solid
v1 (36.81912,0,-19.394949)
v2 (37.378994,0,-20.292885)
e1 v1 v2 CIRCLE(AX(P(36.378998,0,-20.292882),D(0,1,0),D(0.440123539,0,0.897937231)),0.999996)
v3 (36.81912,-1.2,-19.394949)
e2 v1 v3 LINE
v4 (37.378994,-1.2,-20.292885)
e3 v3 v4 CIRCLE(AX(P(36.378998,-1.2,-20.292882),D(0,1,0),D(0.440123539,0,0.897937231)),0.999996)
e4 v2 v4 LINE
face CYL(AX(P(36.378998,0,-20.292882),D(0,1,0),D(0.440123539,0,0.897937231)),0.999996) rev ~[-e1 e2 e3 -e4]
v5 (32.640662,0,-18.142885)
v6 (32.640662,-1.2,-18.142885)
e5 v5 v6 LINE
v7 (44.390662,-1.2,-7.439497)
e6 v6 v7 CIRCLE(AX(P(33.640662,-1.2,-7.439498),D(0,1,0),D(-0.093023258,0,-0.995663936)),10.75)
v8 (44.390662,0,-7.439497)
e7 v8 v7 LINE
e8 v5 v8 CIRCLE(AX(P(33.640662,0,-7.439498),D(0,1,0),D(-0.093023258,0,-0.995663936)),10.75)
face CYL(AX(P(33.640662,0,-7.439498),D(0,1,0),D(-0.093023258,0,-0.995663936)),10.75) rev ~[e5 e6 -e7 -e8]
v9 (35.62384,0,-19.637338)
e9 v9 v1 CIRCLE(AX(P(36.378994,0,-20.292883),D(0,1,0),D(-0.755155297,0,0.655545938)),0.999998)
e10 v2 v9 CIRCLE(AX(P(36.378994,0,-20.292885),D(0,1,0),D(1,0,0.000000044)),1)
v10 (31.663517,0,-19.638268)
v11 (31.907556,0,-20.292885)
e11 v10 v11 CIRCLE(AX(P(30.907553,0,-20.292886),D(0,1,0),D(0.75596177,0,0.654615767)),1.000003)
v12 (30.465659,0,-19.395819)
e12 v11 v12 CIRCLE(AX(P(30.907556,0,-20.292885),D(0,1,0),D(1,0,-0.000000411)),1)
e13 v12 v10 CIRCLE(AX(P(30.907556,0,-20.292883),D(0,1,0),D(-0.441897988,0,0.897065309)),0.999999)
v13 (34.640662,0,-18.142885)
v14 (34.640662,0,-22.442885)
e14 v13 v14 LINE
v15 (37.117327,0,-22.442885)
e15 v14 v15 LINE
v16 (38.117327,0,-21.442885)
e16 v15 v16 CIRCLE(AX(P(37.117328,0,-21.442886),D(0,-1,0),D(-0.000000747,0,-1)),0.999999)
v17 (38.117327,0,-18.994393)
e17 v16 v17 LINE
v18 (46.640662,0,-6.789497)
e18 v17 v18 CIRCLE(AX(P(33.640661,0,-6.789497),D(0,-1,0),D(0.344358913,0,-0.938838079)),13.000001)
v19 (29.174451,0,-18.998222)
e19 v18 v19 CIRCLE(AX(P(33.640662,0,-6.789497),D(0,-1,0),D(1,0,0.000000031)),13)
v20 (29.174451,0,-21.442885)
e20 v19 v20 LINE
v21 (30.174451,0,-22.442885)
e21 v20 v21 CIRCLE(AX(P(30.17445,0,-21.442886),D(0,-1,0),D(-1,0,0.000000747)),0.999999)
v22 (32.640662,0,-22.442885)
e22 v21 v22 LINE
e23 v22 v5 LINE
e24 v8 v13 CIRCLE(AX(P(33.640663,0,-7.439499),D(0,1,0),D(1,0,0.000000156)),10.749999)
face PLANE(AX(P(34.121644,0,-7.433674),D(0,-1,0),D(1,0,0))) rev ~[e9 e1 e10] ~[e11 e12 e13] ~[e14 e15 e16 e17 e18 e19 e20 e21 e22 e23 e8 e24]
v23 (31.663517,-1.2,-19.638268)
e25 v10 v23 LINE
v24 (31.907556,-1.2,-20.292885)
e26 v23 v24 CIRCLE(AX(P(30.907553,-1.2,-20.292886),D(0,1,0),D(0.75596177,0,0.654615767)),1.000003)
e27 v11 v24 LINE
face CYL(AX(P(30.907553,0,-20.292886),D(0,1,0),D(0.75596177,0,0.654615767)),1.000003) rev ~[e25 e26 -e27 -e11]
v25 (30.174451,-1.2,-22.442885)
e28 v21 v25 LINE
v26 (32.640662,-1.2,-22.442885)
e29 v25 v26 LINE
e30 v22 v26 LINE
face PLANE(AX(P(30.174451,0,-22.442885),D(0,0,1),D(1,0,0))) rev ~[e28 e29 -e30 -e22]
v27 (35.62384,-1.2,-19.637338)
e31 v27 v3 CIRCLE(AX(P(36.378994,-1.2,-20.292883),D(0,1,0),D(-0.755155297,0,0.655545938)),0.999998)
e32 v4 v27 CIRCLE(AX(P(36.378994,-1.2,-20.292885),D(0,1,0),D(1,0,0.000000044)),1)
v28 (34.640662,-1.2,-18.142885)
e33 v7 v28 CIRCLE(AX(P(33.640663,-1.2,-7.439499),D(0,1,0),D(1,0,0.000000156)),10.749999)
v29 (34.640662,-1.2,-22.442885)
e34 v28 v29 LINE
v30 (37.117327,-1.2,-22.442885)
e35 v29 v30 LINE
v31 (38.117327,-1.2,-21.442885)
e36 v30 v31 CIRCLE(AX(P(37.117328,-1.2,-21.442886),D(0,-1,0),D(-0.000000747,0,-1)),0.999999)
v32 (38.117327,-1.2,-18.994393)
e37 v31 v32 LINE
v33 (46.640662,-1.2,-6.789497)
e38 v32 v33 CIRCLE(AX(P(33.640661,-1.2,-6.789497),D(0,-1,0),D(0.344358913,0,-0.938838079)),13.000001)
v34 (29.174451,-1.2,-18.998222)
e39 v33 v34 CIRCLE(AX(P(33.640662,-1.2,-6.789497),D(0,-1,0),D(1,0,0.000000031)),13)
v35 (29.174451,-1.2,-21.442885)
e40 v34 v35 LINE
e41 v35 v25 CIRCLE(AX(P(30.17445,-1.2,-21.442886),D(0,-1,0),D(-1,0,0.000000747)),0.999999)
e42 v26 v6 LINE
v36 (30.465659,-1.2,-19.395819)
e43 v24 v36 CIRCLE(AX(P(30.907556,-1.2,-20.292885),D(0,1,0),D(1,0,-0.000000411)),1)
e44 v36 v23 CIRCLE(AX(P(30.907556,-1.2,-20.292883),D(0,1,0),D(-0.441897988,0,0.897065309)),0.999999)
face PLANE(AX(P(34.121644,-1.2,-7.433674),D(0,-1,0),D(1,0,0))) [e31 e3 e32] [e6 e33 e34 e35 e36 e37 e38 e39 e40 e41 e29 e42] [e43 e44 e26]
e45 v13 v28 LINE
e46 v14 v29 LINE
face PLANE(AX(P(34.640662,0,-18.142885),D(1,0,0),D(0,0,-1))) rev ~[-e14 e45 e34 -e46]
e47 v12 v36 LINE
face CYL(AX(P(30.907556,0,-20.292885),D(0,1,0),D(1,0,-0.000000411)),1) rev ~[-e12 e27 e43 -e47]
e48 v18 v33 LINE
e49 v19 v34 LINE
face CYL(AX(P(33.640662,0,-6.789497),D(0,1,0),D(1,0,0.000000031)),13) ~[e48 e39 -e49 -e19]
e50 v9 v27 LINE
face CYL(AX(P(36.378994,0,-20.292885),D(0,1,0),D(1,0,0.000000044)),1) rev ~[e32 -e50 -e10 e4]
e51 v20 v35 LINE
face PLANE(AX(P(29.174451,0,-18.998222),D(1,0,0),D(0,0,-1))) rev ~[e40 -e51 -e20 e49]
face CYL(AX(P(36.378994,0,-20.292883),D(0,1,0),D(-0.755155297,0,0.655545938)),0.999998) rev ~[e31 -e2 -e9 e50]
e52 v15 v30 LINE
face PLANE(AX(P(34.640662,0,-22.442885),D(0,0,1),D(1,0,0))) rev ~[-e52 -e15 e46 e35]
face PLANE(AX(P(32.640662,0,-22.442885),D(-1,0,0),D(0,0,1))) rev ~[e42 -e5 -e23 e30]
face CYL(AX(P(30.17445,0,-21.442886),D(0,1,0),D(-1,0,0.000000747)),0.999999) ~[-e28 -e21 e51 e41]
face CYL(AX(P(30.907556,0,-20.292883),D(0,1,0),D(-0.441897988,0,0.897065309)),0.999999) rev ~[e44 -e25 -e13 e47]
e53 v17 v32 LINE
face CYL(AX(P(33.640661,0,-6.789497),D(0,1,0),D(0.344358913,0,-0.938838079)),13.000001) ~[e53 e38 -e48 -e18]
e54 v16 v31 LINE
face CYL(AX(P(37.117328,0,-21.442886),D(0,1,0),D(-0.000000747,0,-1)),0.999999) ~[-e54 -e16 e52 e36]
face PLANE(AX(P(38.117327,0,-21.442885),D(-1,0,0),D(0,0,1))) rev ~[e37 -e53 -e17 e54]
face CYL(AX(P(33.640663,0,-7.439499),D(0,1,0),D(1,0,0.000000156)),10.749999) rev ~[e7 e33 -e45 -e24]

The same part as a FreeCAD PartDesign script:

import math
import FreeCAD as App
import Part
import Sketcher

V = App.Vector
Q = App.Units.Quantity

doc = App.newDocument("Part")
body = doc.addObject("PartDesign::Body", "Body")

# Sketch on XZ plane
sketch1 = body.newObject("Sketcher::SketchObject", "Sketch")
sketch1.AttachmentSupport = (doc.getObject("XZ_Plane"), [""])
sketch1.MapMode = "FlatFace"
sketch1.addGeometry([
    Part.ArcOfCircle(Part.Circle(V(33.6, -7.4, 0), V(0, 0, 1), 10.7), math.radians(0), math.radians(265)),  # 0
    Part.ArcOfCircle(Part.Circle(V(33.6, -7.4, 0), V(0, 0, 1), 10.7), math.radians(-85), math.radians(0)),  # 1
    Part.LineSegment(V(34.6, -18.1, 0), V(34.6, -22.4, 0)),  # 2
    Part.LineSegment(V(34.6, -22.4, 0), V(37.1, -22.4, 0)),  # 3
    Part.ArcOfCircle(Part.Circle(V(37.1, -21.4, 0), V(0, 0, 1), 1), math.radians(-90), math.radians(0)),  # 4
    Part.LineSegment(V(38.1, -21.4, 0), V(38.1, -19, 0)),  # 5
    Part.ArcOfCircle(Part.Circle(V(33.6, -6.8, 0), V(0, 0, 1), 13), math.radians(-70), math.radians(0)),  # 6
    Part.ArcOfCircle(Part.Circle(V(33.6, -6.8, 0), V(0, 0, 1), 13), math.radians(0), math.radians(250)),  # 7
    Part.LineSegment(V(29.2, -19, 0), V(29.2, -21.4, 0)),  # 8
    Part.ArcOfCircle(Part.Circle(V(30.2, -21.4, 0), V(0, 0, 1), 1), math.radians(180), math.radians(270)),  # 9
    Part.LineSegment(V(30.2, -22.4, 0), V(32.6, -22.4, 0)),  # 10
    Part.LineSegment(V(32.6, -22.4, 0), V(32.6, -18.1, 0)),  # 11
    Part.ArcOfCircle(Part.Circle(V(36.4, -20.3, 0), V(0, 0, 1), 1), math.radians(64), math.radians(139)),  # 12
    Part.ArcOfCircle(Part.Circle(V(36.4, -20.3, 0), V(0, 0, 1), 1), math.radians(0), math.radians(64)),  # 13
    Part.ArcOfCircle(Part.Circle(V(36.4, -20.3, 0), V(0, 0, 1), 1), math.radians(139), math.radians(360)),  # 14
    Part.ArcOfCircle(Part.Circle(V(30.9, -20.3, 0), V(0, 0, 1), 1), math.radians(41), math.radians(116)),  # 15
    Part.ArcOfCircle(Part.Circle(V(30.9, -20.3, 0), V(0, 0, 1), 1), math.radians(0), math.radians(41)),  # 16
    Part.ArcOfCircle(Part.Circle(V(30.9, -20.3, 0), V(0, 0, 1), 1), math.radians(116), math.radians(360)),  # 17
], False)
sketch1.addConstraint([
    Sketcher.Constraint("Tangent", 0, 1, 1, 2),
    Sketcher.Constraint("Coincident", 1, 1, 2, 1),
    Sketcher.Constraint("Coincident", 2, 2, 3, 1),
    Sketcher.Constraint("Tangent", 3, 2, 4, 1),
    Sketcher.Constraint("Tangent", 4, 2, 5, 1),
    Sketcher.Constraint("Coincident", 5, 2, 6, 1),
    Sketcher.Constraint("Tangent", 6, 2, 7, 1),
    Sketcher.Constraint("Coincident", 7, 2, 8, 1),
    Sketcher.Constraint("Tangent", 8, 2, 9, 1),
    Sketcher.Constraint("Tangent", 9, 2, 10, 1),
    Sketcher.Constraint("Coincident", 10, 2, 11, 1),
    Sketcher.Constraint("Coincident", 11, 2, 0, 2),
    Sketcher.Constraint("Coincident", 12, 1, 13, 2),
    Sketcher.Constraint("Coincident", 13, 1, 14, 2),
    Sketcher.Constraint("Tangent", 14, 1, 12, 2),
    Sketcher.Constraint("Tangent", 15, 1, 16, 2),
    Sketcher.Constraint("Tangent", 16, 1, 17, 2),
    Sketcher.Constraint("Tangent", 17, 1, 15, 2),
    Sketcher.Constraint("Vertical", 2),
    Sketcher.Constraint("Horizontal", 3),
    Sketcher.Constraint("Vertical", 5),
    Sketcher.Constraint("Vertical", 8),
    Sketcher.Constraint("Horizontal", 10),
    Sketcher.Constraint("Vertical", 11),
    Sketcher.Constraint("Coincident", 13, 3, 12, 3),
    Sketcher.Constraint("Equal", 0, 1),
    Sketcher.Constraint("Equal", 6, 7),
    Sketcher.Constraint("Equal", 4, 9),
    Sketcher.Constraint("Equal", 9, 12),
    Sketcher.Constraint("Equal", 14, 15),
    Sketcher.Constraint("Horizontal", 4, 3, 9, 3),
    Sketcher.Constraint("Horizontal", 14, 3, 15, 3),
    Sketcher.Constraint("Horizontal", 1, 3, 0, 1),
    Sketcher.Constraint("Horizontal", 7, 3, 6, 2),
    Sketcher.Constraint("Horizontal", 1, 1, 11, 2),
    Sketcher.Constraint("Horizontal", 17, 3, 13, 1),
    Sketcher.Constraint("Horizontal", 13, 1, 16, 1),
    Sketcher.Constraint("Vertical", 0, 3, 6, 3),
    Sketcher.Constraint("Radius", 4, Q("0.999999 mm")),
    Sketcher.Constraint("Radius", 6, Q("13.000001 mm")),
    Sketcher.Constraint("Radius", 0, Q("10.75 mm")),
    Sketcher.Constraint("DistanceY", 2, 2, 2, 1, Q("4.3 mm")),
    Sketcher.Constraint("DistanceX", 10, 2, 2, 2, Q("2 mm")),
    Sketcher.Constraint("DistanceY", 0, 3, 6, 3, Q("0.650001 mm")),
    Sketcher.Constraint("DistanceY", 4, 3, 14, 3, Q("1.150001 mm")),
    Sketcher.Constraint("DistanceX", -1, 1, 13, 3, Q("36.378998 mm")),
    Sketcher.Constraint("DistanceX", 10, 1, 10, 2, Q("2.466211 mm")),
    Sketcher.Constraint("DistanceY", 1, 3, -1, 1, Q("7.439499 mm")),
    Sketcher.Constraint("DistanceX", 7, 2, 16, 3, Q("1.733102 mm")),
    Sketcher.Constraint("DistanceX", 3, 1, 3, 2, Q("2.476665 mm")),
    Sketcher.Constraint("DistanceX", -1, 1, 6, 3, Q("33.640661 mm")),
    Sketcher.Constraint("DistanceX", -1, 1, 12, 1, Q("36.81912 mm")),
    Sketcher.Constraint("DistanceX", -1, 1, 14, 1, Q("35.62384 mm")),
    Sketcher.Constraint("DistanceX", -1, 1, 17, 1, Q("30.465659 mm")),
    Sketcher.Constraint("DistanceX", 15, 3, 15, 1, Q("0.755961 mm")),
])
pad1 = body.newObject("PartDesign::Pad", "Pad")
pad1.Profile = sketch1
pad1.Length = 1.2

doc.recompute()
